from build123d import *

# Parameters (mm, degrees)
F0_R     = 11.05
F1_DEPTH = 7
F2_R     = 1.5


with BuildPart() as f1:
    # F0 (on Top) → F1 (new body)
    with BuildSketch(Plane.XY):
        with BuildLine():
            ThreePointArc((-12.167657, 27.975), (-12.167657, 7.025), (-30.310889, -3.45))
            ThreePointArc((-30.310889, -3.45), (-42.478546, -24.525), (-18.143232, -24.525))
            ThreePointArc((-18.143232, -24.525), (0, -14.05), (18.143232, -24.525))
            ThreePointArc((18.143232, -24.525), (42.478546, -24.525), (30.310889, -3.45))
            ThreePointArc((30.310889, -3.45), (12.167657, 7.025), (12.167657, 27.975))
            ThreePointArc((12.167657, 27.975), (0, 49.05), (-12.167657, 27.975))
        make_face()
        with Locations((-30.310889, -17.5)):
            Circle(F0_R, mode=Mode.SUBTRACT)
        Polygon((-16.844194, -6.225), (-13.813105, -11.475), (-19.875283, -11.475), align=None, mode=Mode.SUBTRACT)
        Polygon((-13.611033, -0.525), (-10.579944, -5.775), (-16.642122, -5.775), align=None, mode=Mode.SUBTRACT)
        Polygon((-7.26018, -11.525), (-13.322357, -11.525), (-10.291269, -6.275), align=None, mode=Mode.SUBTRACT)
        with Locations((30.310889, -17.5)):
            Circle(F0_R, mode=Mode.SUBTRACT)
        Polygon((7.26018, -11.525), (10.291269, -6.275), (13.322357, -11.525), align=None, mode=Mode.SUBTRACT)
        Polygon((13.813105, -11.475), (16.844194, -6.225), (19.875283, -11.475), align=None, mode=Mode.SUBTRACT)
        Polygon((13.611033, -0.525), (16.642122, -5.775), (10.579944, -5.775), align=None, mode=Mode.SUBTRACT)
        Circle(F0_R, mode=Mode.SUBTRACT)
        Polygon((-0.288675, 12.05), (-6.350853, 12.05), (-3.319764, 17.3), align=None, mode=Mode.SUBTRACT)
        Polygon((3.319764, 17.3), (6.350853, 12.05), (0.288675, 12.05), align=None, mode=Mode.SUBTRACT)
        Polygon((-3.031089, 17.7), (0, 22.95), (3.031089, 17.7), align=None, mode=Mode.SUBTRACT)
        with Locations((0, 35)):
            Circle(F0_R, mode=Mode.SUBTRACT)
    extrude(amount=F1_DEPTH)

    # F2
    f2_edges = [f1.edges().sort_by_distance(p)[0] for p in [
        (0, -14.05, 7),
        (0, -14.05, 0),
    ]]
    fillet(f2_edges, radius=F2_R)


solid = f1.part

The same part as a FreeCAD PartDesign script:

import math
import FreeCAD as App
import Part
import Sketcher
Q = App.Units.Quantity


def edges_at(feature, points):
    """Names of the edges that pass closest to the given points."""
    edges = feature.Shape.Edges
    near = lambda p: min(range(len(edges)), key=lambda i: edges[i].distToShape(Part.Vertex(*p))[0])
    return sorted({f"Edge{near(p) + 1}" for p in points})

doc = App.newDocument("Part")
body = doc.addObject("PartDesign::Body", "Body")

# Sketch on XY plane
sketch1 = body.newObject("Sketcher::SketchObject", "Sketch")
sketch1.AttachmentSupport = (doc.getObject("XY_Plane"), [""])
sketch1.MapMode = "FlatFace"
sketch1.addGeometry(Part.ArcOfCircle(Part.Circle(App.Vector(-30.310889, 17.5, 0), App.Vector(0, 0, 1), 20.95), math.radians(-89.999999), math.radians(30)), False)
sketch1.addGeometry(Part.ArcOfCircle(Part.Circle(App.Vector(-30.310889, -17.5, 0), App.Vector(0, 0, 1), 14.05), math.radians(90), math.radians(330)), False)
sketch1.addGeometry(Part.ArcOfCircle(Part.Circle(App.Vector(0, -35, 0), App.Vector(0, 0, 1), 20.95), math.radians(29.999999), math.radians(150.000001)), False)
sketch1.addGeometry(Part.ArcOfCircle(Part.Circle(App.Vector(30.310889, -17.5, 0), App.Vector(0, 0, 1), 14.05), math.radians(-150), math.radians(90)), False)
sketch1.addGeometry(Part.ArcOfCircle(Part.Circle(App.Vector(30.310889, 17.5, 0), App.Vector(0, 0, 1), 20.95), math.radians(150), math.radians(269.999999)), False)
sketch1.addGeometry(Part.ArcOfCircle(Part.Circle(App.Vector(0, 35, 0), App.Vector(0, 0, 1), 14.05), math.radians(-30), math.radians(210)), False)
sketch1.addGeometry(Part.Circle(App.Vector(-30.310889, -17.5, 0), App.Vector(0, 0, 1), 11.05), False)
sketch1.addGeometry(Part.LineSegment(App.Vector(-19.875283, -11.475, 0), App.Vector(-16.844194, -6.225, 0)), False)
sketch1.addGeometry(Part.LineSegment(App.Vector(-16.844194, -6.225, 0), App.Vector(-13.813105, -11.475, 0)), False)
sketch1.addGeometry(Part.LineSegment(App.Vector(-13.813105, -11.475, 0), App.Vector(-19.875283, -11.475, 0)), False)
sketch1.addGeometry(Part.LineSegment(App.Vector(-16.642122, -5.775, 0), App.Vector(-13.611033, -0.525, 0)), False)
sketch1.addGeometry(Part.LineSegment(App.Vector(-13.611033, -0.525, 0), App.Vector(-10.579944, -5.775, 0)), False)
sketch1.addGeometry(Part.LineSegment(App.Vector(-10.579944, -5.775, 0), App.Vector(-16.642122, -5.775, 0)), False)
sketch1.addGeometry(Part.LineSegment(App.Vector(-10.291269, -6.275, 0), App.Vector(-7.26018, -11.525, 0)), False)
sketch1.addGeometry(Part.LineSegment(App.Vector(-7.26018, -11.525, 0), App.Vector(-13.322357, -11.525, 0)), False)
sketch1.addGeometry(Part.LineSegment(App.Vector(-13.322357, -11.525, 0), App.Vector(-10.291269, -6.275, 0)), False)
sketch1.addGeometry(Part.Circle(App.Vector(30.310889, -17.5, 0), App.Vector(0, 0, 1), 11.05), False)
sketch1.addGeometry(Part.LineSegment(App.Vector(13.322357, -11.525, 0), App.Vector(7.26018, -11.525, 0)), False)
sketch1.addGeometry(Part.LineSegment(App.Vector(7.26018, -11.525, 0), App.Vector(10.291269, -6.275, 0)), False)
sketch1.addGeometry(Part.LineSegment(App.Vector(10.291269, -6.275, 0), App.Vector(13.322357, -11.525, 0)), False)
sketch1.addGeometry(Part.LineSegment(App.Vector(19.875283, -11.475, 0), App.Vector(13.813105, -11.475, 0)), False)
sketch1.addGeometry(Part.LineSegment(App.Vector(13.813105, -11.475, 0), App.Vector(16.844194, -6.225, 0)), False)
sketch1.addGeometry(Part.LineSegment(App.Vector(16.844194, -6.225, 0), App.Vector(19.875283, -11.475, 0)), False)
sketch1.addGeometry(Part.LineSegment(App.Vector(10.579944, -5.775, 0), App.Vector(13.611033, -0.525, 0)), False)
sketch1.addGeometry(Part.LineSegment(App.Vector(13.611033, -0.525, 0), App.Vector(16.642122, -5.775, 0)), False)
sketch1.addGeometry(Part.LineSegment(App.Vector(16.642122, -5.775, 0), App.Vector(10.579944, -5.775, 0)), False)
sketch1.addGeometry(Part.Circle(App.Vector(0, 0, 0), App.Vector(0, 0, 1), 11.05), False)
sketch1.addGeometry(Part.LineSegment(App.Vector(-3.319764, 17.3, 0), App.Vector(-0.288675, 12.05, 0)), False)
sketch1.addGeometry(Part.LineSegment(App.Vector(-0.288675, 12.05, 0), App.Vector(-6.350853, 12.05, 0)), False)
sketch1.addGeometry(Part.LineSegment(App.Vector(-6.350853, 12.05, 0), App.Vector(-3.319764, 17.3, 0)), False)
sketch1.addGeometry(Part.LineSegment(App.Vector(0.288675, 12.05, 0), App.Vector(3.319764, 17.3, 0)), False)
sketch1.addGeometry(Part.LineSegment(App.Vector(3.319764, 17.3, 0), App.Vector(6.350853, 12.05, 0)), False)
sketch1.addGeometry(Part.LineSegment(App.Vector(6.350853, 12.05, 0), App.Vector(0.288675, 12.05, 0)), False)
sketch1.addGeometry(Part.LineSegment(App.Vector(3.031089, 17.7, 0), App.Vector(-3.031089, 17.7, 0)), False)
sketch1.addGeometry(Part.LineSegment(App.Vector(-3.031089, 17.7, 0), App.Vector(0, 22.95, 0)), False)
sketch1.addGeometry(Part.LineSegment(App.Vector(0, 22.95, 0), App.Vector(3.031089, 17.7, 0)), False)
sketch1.addGeometry(Part.Circle(App.Vector(0, 35, 0), App.Vector(0, 0, 1), 11.05), False)
sketch1.addConstraint(Sketcher.Constraint("Tangent", 0, 1, 1, 1))
sketch1.addConstraint(Sketcher.Constraint("Tangent", 1, 2, 2, 2))
sketch1.addConstraint(Sketcher.Constraint("Tangent", 2, 1, 3, 1))
sketch1.addConstraint(Sketcher.Constraint("Tangent", 3, 2, 4, 2))
sketch1.addConstraint(Sketcher.Constraint("Tangent", 4, 1, 5, 1))
sketch1.addConstraint(Sketcher.Constraint("Tangent", 5, 2, 0, 2))
sketch1.addConstraint(Sketcher.Constraint("Coincident", 7, 2, 8, 1))
sketch1.addConstraint(Sketcher.Constraint("Coincident", 8, 2, 9, 1))
sketch1.addConstraint(Sketcher.Constraint("Coincident", 9, 2, 7, 1))
sketch1.addConstraint(Sketcher.Constraint("Coincident", 10, 2, 11, 1))
sketch1.addConstraint(Sketcher.Constraint("Coincident", 11, 2, 12, 1))
sketch1.addConstraint(Sketcher.Constraint("Coincident", 12, 2, 10, 1))
sketch1.addConstraint(Sketcher.Constraint("Coincident", 13, 2, 14, 1))
sketch1.addConstraint(Sketcher.Constraint("Coincident", 14, 2, 15, 1))
sketch1.addConstraint(Sketcher.Constraint("Coincident", 15, 2, 13, 1))
sketch1.addConstraint(Sketcher.Constraint("Coincident", 17, 2, 18, 1))
sketch1.addConstraint(Sketcher.Constraint("Coincident", 18, 2, 19, 1))
sketch1.addConstraint(Sketcher.Constraint("Coincident", 19, 2, 17, 1))
sketch1.addConstraint(Sketcher.Constraint("Coincident", 20, 2, 21, 1))
sketch1.addConstraint(Sketcher.Constraint("Coincident", 21, 2, 22, 1))
sketch1.addConstraint(Sketcher.Constraint("Coincident", 22, 2, 20, 1))
sketch1.addConstraint(Sketcher.Constraint("Coincident", 23, 2, 24, 1))
sketch1.addConstraint(Sketcher.Constraint("Coincident", 24, 2, 25, 1))
sketch1.addConstraint(Sketcher.Constraint("Coincident", 25, 2, 23, 1))
sketch1.addConstraint(Sketcher.Constraint("Coincident", 27, 2, 28, 1))
sketch1.addConstraint(Sketcher.Constraint("Coincident", 28, 2, 29, 1))
sketch1.addConstraint(Sketcher.Constraint("Coincident", 29, 2, 27, 1))
sketch1.addConstraint(Sketcher.Constraint("Coincident", 30, 2, 31, 1))
sketch1.addConstraint(Sketcher.Constraint("Coincident", 31, 2, 32, 1))
sketch1.addConstraint(Sketcher.Constraint("Coincident", 32, 2, 30, 1))
sketch1.addConstraint(Sketcher.Constraint("Coincident", 33, 2, 34, 1))
sketch1.addConstraint(Sketcher.Constraint("Coincident", 34, 2, 35, 1))
sketch1.addConstraint(Sketcher.Constraint("Coincident", 35, 2, 33, 1))
sketch1.addConstraint(Sketcher.Constraint("Horizontal", 9))
sketch1.addConstraint(Sketcher.Constraint("Horizontal", 12))
sketch1.addConstraint(Sketcher.Constraint("Horizontal", 14))
sketch1.addConstraint(Sketcher.Constraint("Horizontal", 17))
sketch1.addConstraint(Sketcher.Constraint("Horizontal", 20))
sketch1.addConstraint(Sketcher.Constraint("Horizontal", 25))
sketch1.addConstraint(Sketcher.Constraint("Horizontal", 28))
sketch1.addConstraint(Sketcher.Constraint("Horizontal", 32))
sketch1.addConstraint(Sketcher.Constraint("Horizontal", 33))
sketch1.addConstraint(Sketcher.Constraint("Coincident", 26, 3, -1, 1))
sketch1.addConstraint(Sketcher.Constraint("Coincident", 6, 3, 1, 3))
sketch1.addConstraint(Sketcher.Constraint("Coincident", 16, 3, 3, 3))
sketch1.addConstraint(Sketcher.Constraint("Coincident", 36, 3, 5, 3))
sketch1.addConstraint(Sketcher.Constraint("Equal", 0, 2))
sketch1.addConstraint(Sketcher.Constraint("Equal", 1, 3))
sketch1.addConstraint(Sketcher.Constraint("Equal", 2, 4))
sketch1.addConstraint(Sketcher.Constraint("Equal", 3, 5))
sketch1.addConstraint(Sketcher.Constraint("Equal", 6, 16))
sketch1.addConstraint(Sketcher.Constraint("Equal", 16, 26))
sketch1.addConstraint(Sketcher.Constraint("Equal", 26, 36))
sketch1.addConstraint(Sketcher.Constraint("Symmetric", 0, 3, 3, 3, -1, 1))
sketch1.addConstraint(Sketcher.Constraint("Symmetric", 1, 3, 3, 3, -2))
sketch1.addConstraint(Sketcher.Constraint("Symmetric", 13, 2, 17, 2, -2))
sketch1.addConstraint(Sketcher.Constraint("Symmetric", 15, 2, 18, 2, -2))
sketch1.addConstraint(Sketcher.Constraint("Symmetric", 8, 2, 20, 2, -2))
sketch1.addConstraint(Sketcher.Constraint("Symmetric", 7, 2, 21, 2, -2))
sketch1.addConstraint(Sketcher.Constraint("Symmetric", 10, 2, 23, 2, -2))
sketch1.addConstraint(Sketcher.Constraint("Symmetric", 12, 2, 24, 2, -2))
sketch1.addConstraint(Sketcher.Constraint("Symmetric", 29, 2, 30, 2, -2))
sketch1.addConstraint(Sketcher.Constraint("Symmetric", 28, 2, 31, 2, -2))
sketch1.addConstraint(Sketcher.Constraint("PointOnObject", 5, 3, -2))
sketch1.addConstraint(Sketcher.Constraint("PointOnObject", 34, 2, -2))
sketch1.addConstraint(Sketcher.Constraint("Parallel", 7, 10))
sketch1.addConstraint(Sketcher.Constraint("Parallel", 8, 11))
sketch1.addConstraint(Sketcher.Constraint("Parallel", 11, 13))
sketch1.addConstraint(Sketcher.Constraint("Parallel", 10, 15))
sketch1.addConstraint(Sketcher.Constraint("Parallel", 15, 18))
sketch1.addConstraint(Sketcher.Constraint("Parallel", 13, 19))
sketch1.addConstraint(Sketcher.Constraint("Parallel", 19, 22))
sketch1.addConstraint(Sketcher.Constraint("Parallel", 21, 23))
sketch1.addConstraint(Sketcher.Constraint("Parallel", 24, 27))
sketch1.addConstraint(Sketcher.Constraint("Parallel", 23, 29))
sketch1.addConstraint(Sketcher.Constraint("Parallel", 29, 30))
sketch1.addConstraint(Sketcher.Constraint("Parallel", 30, 34))
sketch1.addConstraint(Sketcher.Constraint("Parallel", 31, 35))
sketch1.addConstraint(Sketcher.Constraint("Equal", 9, 12))
sketch1.addConstraint(Sketcher.Constraint("Equal", 12, 14))
sketch1.addConstraint(Sketcher.Constraint("Equal", 25, 28))
sketch1.addConstraint(Sketcher.Constraint("Equal", 32, 33))
sketch1.addConstraint(Sketcher.Constraint("Diameter", 6, 22.1))
sketch1.addConstraint(Sketcher.Constraint("Angle", 7, Q("59.999999 deg")))
sketch1.addConstraint(Sketcher.Constraint("Radius", 0, 20.95))
sketch1.addConstraint(Sketcher.Constraint("Radius", 1, 14.05))
sketch1.addConstraint(Sketcher.Constraint("DistanceY", 2, 3, -1, 1, 35.0))
sketch1.addConstraint(Sketcher.Constraint("DistanceY", 2, 1, 17, 2, 13.0))
sketch1.addConstraint(Sketcher.Constraint("DistanceY", 19, 2, 23, 2, 11.0))
sketch1.addConstraint(Sketcher.Constraint("DistanceY", -1, 1, 29, 2, 17.3))
sketch1.addConstraint(Sketcher.Constraint("DistanceY", -1, 1, 33, 2, 17.7))
sketch1.addConstraint(Sketcher.Constraint("DistanceY", 1, 2, 7, 2, 18.3))
sketch1.addConstraint(Sketcher.Constraint("DistanceY", 15, 2, 11, 2, 0.5))
sketch1.addConstraint(Sketcher.Constraint("DistanceX", 13, 2, -1, 1, 7.26018))
sketch1.addConstraint(Sketcher.Constraint("DistanceX", 1, 2, 7, 2, 1.299038))
sketch1.addConstraint(Sketcher.Constraint("DistanceX", 7, 2, 10, 2, 3.233161))
sketch1.addConstraint(Sketcher.Constraint("DistanceX", 10, 2, 27, 2, 13.322358))
pad1 = body.newObject("PartDesign::Pad", "Pad")
pad1.Profile = sketch1
pad1.Length = 7
doc.recompute()

fillet = body.newObject("PartDesign::Fillet", "Fillet")
fillet.Base = (pad1, edges_at(pad1, [(0, -14.05, 7), (0, -14.05, 0)]))
fillet.Radius = 1.5

doc.recompute()
